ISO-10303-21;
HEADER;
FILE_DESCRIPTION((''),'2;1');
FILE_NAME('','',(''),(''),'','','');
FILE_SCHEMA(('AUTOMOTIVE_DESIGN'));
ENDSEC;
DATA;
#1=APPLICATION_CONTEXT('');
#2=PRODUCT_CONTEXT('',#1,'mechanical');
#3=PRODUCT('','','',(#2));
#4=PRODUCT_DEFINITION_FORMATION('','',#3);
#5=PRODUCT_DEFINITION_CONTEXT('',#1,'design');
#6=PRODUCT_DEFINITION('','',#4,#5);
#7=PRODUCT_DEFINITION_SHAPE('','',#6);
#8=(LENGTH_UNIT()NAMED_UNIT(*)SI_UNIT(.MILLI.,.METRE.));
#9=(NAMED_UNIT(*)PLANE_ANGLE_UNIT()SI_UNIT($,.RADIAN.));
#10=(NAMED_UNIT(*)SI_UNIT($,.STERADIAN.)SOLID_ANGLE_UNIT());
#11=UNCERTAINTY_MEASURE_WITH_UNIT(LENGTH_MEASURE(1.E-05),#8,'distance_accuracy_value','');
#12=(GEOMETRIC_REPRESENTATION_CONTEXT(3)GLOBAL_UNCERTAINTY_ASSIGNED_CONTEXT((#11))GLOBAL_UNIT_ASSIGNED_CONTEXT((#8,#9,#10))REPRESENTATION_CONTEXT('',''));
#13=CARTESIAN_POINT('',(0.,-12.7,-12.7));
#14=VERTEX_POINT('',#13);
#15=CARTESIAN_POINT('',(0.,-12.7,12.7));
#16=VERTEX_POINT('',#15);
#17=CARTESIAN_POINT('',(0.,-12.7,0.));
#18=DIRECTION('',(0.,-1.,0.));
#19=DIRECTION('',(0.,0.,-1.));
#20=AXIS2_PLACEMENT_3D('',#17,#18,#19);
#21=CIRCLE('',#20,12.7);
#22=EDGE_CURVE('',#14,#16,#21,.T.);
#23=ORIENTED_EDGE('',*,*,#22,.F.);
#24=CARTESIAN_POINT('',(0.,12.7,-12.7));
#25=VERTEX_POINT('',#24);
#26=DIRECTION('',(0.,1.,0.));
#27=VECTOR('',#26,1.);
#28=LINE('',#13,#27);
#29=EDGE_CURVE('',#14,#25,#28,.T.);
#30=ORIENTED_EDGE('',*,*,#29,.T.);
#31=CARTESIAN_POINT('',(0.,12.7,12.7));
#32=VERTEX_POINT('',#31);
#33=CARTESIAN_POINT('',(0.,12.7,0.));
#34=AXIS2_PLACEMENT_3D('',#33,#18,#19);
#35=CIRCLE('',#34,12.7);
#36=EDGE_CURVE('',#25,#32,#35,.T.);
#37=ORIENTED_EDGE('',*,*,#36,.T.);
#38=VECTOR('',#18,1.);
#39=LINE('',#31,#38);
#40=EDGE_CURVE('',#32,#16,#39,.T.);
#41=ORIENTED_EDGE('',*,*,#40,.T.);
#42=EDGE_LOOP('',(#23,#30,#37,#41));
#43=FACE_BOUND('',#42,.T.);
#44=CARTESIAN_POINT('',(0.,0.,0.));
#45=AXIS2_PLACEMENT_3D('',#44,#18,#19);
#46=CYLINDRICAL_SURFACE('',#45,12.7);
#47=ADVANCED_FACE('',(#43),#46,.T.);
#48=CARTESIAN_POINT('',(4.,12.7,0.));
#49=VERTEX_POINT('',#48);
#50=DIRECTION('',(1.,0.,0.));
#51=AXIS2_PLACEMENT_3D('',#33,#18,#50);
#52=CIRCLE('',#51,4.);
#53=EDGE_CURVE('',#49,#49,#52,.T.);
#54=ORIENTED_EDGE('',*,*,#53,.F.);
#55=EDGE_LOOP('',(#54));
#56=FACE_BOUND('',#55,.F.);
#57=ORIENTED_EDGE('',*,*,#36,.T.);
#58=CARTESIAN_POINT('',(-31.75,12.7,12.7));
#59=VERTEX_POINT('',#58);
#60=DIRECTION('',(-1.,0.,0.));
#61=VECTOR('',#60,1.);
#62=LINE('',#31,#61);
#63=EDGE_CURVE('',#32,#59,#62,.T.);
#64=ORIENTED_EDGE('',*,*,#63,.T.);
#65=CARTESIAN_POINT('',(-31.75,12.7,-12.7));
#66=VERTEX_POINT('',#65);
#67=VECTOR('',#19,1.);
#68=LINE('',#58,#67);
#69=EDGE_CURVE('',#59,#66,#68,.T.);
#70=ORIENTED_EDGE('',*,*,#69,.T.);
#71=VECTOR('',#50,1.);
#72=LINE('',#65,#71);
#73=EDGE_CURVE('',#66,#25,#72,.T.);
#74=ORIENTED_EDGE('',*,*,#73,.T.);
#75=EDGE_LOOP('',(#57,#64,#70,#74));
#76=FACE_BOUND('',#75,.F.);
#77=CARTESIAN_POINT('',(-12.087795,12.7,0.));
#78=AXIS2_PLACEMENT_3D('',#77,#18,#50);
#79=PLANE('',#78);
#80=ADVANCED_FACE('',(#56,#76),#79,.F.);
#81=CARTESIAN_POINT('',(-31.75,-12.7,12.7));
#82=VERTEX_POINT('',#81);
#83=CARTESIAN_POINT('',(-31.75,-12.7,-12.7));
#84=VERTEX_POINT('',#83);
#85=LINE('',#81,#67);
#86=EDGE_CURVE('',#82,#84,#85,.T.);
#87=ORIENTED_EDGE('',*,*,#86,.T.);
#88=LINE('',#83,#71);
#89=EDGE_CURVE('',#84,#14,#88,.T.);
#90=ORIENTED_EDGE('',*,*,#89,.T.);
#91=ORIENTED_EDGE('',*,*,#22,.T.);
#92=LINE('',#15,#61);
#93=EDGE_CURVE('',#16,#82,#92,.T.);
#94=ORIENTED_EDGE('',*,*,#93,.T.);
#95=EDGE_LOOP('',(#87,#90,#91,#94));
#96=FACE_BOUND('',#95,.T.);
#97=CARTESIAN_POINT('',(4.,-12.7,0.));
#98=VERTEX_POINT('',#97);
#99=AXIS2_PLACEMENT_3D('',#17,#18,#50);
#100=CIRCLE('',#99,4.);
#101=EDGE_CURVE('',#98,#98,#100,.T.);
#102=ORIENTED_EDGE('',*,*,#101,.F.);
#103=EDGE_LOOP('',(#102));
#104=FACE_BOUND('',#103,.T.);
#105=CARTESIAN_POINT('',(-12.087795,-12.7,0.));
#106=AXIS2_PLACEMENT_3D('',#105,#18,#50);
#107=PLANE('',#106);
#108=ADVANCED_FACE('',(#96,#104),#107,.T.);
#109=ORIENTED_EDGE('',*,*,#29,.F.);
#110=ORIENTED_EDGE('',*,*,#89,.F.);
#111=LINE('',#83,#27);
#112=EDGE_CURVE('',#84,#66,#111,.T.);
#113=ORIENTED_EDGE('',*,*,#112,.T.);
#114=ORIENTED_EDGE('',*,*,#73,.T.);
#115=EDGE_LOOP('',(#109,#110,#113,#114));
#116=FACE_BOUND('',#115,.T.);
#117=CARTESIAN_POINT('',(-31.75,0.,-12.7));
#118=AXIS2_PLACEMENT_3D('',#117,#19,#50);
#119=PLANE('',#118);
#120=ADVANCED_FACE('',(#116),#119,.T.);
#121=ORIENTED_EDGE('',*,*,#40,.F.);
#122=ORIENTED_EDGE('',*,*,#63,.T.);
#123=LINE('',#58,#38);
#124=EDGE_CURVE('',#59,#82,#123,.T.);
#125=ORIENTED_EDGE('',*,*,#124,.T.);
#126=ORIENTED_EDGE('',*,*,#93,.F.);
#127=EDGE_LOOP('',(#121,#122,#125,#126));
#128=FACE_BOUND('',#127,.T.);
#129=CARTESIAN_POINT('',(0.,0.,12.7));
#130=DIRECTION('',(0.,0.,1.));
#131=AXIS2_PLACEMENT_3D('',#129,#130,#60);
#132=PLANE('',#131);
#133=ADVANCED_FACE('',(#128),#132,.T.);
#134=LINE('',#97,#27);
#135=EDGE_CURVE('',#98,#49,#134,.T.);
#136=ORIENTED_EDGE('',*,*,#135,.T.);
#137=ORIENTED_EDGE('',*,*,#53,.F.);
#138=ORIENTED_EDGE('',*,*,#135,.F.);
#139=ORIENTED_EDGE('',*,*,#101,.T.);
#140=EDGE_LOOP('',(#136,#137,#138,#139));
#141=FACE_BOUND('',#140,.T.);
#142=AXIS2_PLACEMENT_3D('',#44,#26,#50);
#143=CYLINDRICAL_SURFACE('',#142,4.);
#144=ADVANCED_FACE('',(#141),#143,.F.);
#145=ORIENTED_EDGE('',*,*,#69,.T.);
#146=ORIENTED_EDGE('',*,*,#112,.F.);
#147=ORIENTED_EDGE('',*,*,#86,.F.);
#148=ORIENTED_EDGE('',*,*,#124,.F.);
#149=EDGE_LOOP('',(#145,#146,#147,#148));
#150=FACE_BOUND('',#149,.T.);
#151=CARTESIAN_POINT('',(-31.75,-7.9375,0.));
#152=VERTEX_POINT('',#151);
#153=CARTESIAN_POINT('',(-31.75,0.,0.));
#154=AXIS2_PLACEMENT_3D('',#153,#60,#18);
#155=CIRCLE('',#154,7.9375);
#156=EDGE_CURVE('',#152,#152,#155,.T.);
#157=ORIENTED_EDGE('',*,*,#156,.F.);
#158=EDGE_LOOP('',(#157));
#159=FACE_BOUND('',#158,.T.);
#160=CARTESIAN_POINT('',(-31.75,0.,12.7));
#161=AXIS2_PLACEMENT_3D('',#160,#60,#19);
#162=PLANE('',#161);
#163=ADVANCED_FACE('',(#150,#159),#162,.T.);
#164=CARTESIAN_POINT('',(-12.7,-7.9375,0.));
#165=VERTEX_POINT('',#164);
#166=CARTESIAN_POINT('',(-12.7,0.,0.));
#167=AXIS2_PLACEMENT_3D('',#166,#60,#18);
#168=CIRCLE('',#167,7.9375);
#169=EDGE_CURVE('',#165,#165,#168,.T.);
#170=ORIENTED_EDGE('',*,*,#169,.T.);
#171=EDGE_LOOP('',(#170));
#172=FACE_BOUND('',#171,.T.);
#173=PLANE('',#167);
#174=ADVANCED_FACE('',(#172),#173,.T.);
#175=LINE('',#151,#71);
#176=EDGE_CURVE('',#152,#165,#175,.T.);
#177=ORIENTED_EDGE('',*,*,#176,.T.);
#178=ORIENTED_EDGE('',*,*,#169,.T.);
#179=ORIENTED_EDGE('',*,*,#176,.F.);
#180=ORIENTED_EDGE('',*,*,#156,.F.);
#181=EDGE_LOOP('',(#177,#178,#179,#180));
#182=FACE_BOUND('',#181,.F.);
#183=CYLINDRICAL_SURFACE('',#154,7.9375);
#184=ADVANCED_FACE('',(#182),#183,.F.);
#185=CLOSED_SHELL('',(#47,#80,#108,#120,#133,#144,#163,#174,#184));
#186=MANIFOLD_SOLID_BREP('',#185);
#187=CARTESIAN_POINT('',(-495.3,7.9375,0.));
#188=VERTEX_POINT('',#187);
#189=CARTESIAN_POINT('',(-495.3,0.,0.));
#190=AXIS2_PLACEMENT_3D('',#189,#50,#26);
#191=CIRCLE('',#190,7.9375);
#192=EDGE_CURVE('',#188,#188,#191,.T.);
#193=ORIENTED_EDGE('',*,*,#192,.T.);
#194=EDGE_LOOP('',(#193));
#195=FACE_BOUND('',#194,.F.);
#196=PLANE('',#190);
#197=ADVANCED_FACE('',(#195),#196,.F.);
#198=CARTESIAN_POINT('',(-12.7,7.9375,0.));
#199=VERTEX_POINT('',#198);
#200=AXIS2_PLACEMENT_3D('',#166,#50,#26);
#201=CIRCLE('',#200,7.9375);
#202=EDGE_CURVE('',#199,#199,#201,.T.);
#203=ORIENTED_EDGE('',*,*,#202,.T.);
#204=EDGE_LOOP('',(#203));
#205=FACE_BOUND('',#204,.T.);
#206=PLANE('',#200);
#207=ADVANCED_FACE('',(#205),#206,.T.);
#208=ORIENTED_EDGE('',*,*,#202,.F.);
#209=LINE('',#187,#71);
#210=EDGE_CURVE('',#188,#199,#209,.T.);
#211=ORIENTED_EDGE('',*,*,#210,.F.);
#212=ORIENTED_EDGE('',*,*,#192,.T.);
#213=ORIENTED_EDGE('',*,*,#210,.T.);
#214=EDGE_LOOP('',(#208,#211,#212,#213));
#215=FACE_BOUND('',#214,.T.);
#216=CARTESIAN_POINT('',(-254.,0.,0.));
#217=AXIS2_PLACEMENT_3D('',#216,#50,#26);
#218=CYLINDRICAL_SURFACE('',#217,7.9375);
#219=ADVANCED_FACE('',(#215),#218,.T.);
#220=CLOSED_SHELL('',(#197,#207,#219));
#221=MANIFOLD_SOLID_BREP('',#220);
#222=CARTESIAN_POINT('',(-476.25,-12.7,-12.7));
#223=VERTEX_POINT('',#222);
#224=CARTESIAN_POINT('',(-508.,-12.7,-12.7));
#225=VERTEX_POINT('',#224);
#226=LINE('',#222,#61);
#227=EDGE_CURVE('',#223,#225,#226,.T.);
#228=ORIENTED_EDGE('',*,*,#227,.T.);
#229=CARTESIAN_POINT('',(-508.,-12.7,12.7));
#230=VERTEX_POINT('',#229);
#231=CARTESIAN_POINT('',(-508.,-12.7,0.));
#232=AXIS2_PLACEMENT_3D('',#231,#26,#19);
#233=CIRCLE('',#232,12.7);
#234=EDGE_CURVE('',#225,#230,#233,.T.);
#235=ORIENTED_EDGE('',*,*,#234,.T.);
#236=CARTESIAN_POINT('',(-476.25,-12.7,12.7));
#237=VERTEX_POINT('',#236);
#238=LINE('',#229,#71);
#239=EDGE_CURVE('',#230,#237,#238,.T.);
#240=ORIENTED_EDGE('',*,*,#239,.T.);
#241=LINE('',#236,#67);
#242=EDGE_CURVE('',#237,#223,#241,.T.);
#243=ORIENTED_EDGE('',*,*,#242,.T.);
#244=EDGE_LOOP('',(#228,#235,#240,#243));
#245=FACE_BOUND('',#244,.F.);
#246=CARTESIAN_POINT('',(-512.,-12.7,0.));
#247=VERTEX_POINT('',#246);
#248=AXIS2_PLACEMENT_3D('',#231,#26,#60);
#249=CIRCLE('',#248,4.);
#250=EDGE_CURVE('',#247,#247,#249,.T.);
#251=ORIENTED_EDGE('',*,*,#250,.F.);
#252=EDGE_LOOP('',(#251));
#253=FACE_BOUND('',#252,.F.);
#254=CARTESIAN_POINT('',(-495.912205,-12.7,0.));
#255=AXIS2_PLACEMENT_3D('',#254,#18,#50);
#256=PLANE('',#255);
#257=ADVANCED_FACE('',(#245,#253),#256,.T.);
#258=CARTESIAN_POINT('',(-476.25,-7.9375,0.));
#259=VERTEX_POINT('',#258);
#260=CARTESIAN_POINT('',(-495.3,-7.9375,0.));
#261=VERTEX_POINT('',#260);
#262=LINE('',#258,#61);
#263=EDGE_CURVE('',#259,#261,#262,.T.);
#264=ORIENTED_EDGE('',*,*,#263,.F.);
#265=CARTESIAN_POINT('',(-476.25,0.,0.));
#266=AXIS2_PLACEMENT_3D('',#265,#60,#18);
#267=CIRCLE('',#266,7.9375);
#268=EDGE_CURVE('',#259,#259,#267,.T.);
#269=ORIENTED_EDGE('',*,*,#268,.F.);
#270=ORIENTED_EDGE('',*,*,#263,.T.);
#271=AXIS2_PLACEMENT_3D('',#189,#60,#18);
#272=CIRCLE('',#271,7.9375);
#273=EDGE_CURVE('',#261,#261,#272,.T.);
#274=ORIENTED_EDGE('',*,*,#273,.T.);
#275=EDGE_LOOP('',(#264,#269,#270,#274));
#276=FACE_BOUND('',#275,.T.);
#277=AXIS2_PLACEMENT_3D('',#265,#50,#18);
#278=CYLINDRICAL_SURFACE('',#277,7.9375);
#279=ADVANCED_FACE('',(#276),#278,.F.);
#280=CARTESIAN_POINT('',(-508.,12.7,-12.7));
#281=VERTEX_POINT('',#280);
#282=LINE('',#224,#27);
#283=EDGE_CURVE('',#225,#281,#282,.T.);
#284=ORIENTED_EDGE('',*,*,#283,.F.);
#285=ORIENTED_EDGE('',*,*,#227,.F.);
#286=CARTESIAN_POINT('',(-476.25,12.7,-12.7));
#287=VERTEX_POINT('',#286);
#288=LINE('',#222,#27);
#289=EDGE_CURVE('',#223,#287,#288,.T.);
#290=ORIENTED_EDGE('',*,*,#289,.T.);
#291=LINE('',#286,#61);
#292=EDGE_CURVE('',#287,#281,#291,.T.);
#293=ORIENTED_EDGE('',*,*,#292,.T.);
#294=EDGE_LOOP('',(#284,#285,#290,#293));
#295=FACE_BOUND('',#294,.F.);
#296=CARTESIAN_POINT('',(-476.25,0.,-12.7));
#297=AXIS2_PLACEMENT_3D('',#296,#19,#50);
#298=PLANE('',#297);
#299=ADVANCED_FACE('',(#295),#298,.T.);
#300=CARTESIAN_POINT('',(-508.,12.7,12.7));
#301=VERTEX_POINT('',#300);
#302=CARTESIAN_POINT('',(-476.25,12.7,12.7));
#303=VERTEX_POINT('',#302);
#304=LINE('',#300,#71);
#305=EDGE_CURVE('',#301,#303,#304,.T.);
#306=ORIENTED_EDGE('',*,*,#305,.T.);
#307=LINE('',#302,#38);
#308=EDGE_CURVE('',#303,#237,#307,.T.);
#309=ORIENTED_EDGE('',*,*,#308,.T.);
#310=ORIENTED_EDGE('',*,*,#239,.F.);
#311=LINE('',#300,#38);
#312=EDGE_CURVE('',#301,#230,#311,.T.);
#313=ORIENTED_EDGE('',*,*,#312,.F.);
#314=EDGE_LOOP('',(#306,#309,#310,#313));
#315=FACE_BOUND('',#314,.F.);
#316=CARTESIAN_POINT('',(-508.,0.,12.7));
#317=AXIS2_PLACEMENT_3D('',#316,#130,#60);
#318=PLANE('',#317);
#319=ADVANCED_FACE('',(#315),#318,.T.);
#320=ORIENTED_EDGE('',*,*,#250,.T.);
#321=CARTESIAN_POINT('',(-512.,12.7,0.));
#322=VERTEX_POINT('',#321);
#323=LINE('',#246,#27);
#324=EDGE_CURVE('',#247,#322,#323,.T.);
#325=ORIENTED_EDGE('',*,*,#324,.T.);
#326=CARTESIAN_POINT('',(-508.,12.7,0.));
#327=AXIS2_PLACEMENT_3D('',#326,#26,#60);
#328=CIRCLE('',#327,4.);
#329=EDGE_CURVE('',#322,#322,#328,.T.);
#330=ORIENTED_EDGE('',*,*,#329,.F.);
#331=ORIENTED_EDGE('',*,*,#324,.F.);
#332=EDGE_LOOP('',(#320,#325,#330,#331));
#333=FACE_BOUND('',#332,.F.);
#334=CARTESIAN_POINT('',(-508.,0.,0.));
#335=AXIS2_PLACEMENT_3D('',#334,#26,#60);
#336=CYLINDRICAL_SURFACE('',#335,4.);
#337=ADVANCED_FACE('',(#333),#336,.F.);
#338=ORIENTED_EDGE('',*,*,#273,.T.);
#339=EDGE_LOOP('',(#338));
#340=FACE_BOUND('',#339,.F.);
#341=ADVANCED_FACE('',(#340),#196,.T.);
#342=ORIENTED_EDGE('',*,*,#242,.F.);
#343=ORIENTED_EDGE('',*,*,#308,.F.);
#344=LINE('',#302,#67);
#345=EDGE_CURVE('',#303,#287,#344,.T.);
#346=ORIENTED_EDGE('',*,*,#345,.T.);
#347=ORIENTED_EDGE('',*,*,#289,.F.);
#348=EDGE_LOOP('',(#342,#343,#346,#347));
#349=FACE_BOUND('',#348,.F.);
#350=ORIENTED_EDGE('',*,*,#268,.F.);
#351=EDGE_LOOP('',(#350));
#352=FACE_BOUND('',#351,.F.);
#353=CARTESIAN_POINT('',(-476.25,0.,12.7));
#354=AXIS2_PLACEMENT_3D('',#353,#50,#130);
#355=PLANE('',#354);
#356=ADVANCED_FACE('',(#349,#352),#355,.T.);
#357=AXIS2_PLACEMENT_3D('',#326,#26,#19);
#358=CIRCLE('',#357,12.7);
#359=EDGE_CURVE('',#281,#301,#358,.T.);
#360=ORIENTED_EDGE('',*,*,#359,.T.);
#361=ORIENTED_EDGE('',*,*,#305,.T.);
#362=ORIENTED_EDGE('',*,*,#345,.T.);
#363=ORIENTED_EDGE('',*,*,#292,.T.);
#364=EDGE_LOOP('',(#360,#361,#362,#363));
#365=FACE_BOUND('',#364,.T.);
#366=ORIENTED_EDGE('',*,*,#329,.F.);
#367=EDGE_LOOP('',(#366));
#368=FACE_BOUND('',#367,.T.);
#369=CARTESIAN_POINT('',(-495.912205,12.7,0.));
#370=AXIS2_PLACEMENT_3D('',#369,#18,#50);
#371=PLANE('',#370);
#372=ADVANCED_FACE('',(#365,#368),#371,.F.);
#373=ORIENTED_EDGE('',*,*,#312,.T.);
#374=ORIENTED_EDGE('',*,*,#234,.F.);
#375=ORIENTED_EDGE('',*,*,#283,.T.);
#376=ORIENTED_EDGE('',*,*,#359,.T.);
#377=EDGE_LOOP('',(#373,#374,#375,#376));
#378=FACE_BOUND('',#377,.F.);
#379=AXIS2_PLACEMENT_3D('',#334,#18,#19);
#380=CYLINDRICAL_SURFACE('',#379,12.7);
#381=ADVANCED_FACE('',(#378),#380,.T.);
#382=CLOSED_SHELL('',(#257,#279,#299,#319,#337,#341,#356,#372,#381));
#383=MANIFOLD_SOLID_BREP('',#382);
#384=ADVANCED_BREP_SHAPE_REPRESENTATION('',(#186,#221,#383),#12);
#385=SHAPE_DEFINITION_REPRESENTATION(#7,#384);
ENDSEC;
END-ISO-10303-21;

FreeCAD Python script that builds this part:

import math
import FreeCAD as App
import Part
import Sketcher

V = App.Vector
Q = App.Units.Quantity

doc = App.newDocument("Part")
body = doc.addObject("PartDesign::Body", "Body")

sketch1 = doc.addObject("Sketcher::SketchObject", "Sketch")
body.addObject(sketch1)
sketch1.AttachmentSupport = (doc.XZ_Plane, [""])
sketch1.MapMode = "FlatFace"
sketch1.addGeometry(Part.ArcOfCircle(Part.Circle(V(0, 0, 0), V(0, 0, 1), 12.7), math.radians(-90), math.radians(90)), False)
sketch1.addGeometry(Part.LineSegment(V(0, 12.7, 0), V(-31.8, 12.7, 0)), False)
sketch1.addGeometry(Part.LineSegment(V(-31.8, 12.7, 0), V(-31.8, -12.7, 0)), False)
sketch1.addGeometry(Part.LineSegment(V(-31.8, -12.7, 0), V(0, -12.7, 0)), False)
sketch1.addGeometry(Part.Circle(V(0, 0, 0), V(0, 0, 1), 4), False)
sketch1.addConstraint(Sketcher.Constraint("Tangent", 0, 2, 1, 1))
sketch1.addConstraint(Sketcher.Constraint("Coincident", 1, 2, 2, 1))
sketch1.addConstraint(Sketcher.Constraint("Coincident", 2, 2, 3, 1))
sketch1.addConstraint(Sketcher.Constraint("Tangent", 3, 2, 0, 1))
sketch1.addConstraint(Sketcher.Constraint("Horizontal", 1))
sketch1.addConstraint(Sketcher.Constraint("Vertical", 2))
sketch1.addConstraint(Sketcher.Constraint("Horizontal", 3))
sketch1.addConstraint(Sketcher.Constraint("Coincident", 0, 3, -1, 1))
sketch1.addConstraint(Sketcher.Constraint("Coincident", 4, 3, -1, 1))
sketch1.addConstraint(Sketcher.Constraint("Radius", 0, Q("0.5 in")))
sketch1.addConstraint(Sketcher.Constraint("DistanceX", 1, 2, 1, 1, Q("1.25 in")))
sketch1.addConstraint(Sketcher.Constraint("Diameter", 4, 8.0))
pad1 = doc.addObject("PartDesign::Pad", "Pad")
body.addObject(pad1)
pad1.Profile = sketch1
pad1.Length = Q("1 in")
pad1.Midplane = True

sketch2 = doc.addObject("Sketcher::SketchObject", "Sketch001")
body.addObject(sketch2)
sketch2.AttachmentSupport = (doc.YZ_Plane, [""])
sketch2.MapMode = "FlatFace"
sketch2.AttachmentOffset = App.Placement(V(0, 0, -1.25 * 25.4), App.Rotation())
sketch2.addGeometry(Part.Circle(V(0, 0, 0), V(0, 0, 1), 8), False)
sketch2.addConstraint(Sketcher.Constraint("Coincident", 0, 3, -1, 1))
sketch2.addConstraint(Sketcher.Constraint("Diameter", 0, Q("0.625 in")))
pocket1 = doc.addObject("PartDesign::Pocket", "Pocket")
body.addObject(pocket1)
pocket1.Profile = sketch2
pocket1.Length = Q("0.75 in")
pocket1.Reversed = True
body2 = doc.addObject("PartDesign::Body", "Body001")
doc.recompute()

mirroring = doc.addObject("Part::Mirroring", "Mirroring")
mirroring.Source = body
mirroring.Base = V(-254, 0, 0)
mirroring.Normal = V(1, 0, 0)
body2.BaseFeature = mirroring
doc.recompute()
body3 = doc.addObject("PartDesign::Body", "Body002")

sketch3 = doc.addObject("Sketcher::SketchObject", "Sketch002")
body3.addObject(sketch3)
sketch3.AttachmentSupport = (doc.getObject("YZ_Plane002"), [""])
sketch3.MapMode = "FlatFace"
sketch3.AttachmentOffset = App.Placement(V(0, 0, -10 * 25.4), App.Rotation())
sketch3.addGeometry(Part.Circle(V(0, 0, 0), V(0, 0, 1), 8), False)
sketch3.addConstraint(Sketcher.Constraint("Coincident", 0, 3, -1, 1))
sketch3.addConstraint(Sketcher.Constraint("Diameter", 0, Q("0.625 in")))
pad2 = doc.addObject("PartDesign::Pad", "Pad001")
body3.addObject(pad2)
pad2.Profile = sketch3
pad2.Type = "TwoLengths"
pad2.Length = Q("9.5 in")
pad2.Length2 = Q("9.5 in")
mirroring.Visibility = False

doc.recompute()
